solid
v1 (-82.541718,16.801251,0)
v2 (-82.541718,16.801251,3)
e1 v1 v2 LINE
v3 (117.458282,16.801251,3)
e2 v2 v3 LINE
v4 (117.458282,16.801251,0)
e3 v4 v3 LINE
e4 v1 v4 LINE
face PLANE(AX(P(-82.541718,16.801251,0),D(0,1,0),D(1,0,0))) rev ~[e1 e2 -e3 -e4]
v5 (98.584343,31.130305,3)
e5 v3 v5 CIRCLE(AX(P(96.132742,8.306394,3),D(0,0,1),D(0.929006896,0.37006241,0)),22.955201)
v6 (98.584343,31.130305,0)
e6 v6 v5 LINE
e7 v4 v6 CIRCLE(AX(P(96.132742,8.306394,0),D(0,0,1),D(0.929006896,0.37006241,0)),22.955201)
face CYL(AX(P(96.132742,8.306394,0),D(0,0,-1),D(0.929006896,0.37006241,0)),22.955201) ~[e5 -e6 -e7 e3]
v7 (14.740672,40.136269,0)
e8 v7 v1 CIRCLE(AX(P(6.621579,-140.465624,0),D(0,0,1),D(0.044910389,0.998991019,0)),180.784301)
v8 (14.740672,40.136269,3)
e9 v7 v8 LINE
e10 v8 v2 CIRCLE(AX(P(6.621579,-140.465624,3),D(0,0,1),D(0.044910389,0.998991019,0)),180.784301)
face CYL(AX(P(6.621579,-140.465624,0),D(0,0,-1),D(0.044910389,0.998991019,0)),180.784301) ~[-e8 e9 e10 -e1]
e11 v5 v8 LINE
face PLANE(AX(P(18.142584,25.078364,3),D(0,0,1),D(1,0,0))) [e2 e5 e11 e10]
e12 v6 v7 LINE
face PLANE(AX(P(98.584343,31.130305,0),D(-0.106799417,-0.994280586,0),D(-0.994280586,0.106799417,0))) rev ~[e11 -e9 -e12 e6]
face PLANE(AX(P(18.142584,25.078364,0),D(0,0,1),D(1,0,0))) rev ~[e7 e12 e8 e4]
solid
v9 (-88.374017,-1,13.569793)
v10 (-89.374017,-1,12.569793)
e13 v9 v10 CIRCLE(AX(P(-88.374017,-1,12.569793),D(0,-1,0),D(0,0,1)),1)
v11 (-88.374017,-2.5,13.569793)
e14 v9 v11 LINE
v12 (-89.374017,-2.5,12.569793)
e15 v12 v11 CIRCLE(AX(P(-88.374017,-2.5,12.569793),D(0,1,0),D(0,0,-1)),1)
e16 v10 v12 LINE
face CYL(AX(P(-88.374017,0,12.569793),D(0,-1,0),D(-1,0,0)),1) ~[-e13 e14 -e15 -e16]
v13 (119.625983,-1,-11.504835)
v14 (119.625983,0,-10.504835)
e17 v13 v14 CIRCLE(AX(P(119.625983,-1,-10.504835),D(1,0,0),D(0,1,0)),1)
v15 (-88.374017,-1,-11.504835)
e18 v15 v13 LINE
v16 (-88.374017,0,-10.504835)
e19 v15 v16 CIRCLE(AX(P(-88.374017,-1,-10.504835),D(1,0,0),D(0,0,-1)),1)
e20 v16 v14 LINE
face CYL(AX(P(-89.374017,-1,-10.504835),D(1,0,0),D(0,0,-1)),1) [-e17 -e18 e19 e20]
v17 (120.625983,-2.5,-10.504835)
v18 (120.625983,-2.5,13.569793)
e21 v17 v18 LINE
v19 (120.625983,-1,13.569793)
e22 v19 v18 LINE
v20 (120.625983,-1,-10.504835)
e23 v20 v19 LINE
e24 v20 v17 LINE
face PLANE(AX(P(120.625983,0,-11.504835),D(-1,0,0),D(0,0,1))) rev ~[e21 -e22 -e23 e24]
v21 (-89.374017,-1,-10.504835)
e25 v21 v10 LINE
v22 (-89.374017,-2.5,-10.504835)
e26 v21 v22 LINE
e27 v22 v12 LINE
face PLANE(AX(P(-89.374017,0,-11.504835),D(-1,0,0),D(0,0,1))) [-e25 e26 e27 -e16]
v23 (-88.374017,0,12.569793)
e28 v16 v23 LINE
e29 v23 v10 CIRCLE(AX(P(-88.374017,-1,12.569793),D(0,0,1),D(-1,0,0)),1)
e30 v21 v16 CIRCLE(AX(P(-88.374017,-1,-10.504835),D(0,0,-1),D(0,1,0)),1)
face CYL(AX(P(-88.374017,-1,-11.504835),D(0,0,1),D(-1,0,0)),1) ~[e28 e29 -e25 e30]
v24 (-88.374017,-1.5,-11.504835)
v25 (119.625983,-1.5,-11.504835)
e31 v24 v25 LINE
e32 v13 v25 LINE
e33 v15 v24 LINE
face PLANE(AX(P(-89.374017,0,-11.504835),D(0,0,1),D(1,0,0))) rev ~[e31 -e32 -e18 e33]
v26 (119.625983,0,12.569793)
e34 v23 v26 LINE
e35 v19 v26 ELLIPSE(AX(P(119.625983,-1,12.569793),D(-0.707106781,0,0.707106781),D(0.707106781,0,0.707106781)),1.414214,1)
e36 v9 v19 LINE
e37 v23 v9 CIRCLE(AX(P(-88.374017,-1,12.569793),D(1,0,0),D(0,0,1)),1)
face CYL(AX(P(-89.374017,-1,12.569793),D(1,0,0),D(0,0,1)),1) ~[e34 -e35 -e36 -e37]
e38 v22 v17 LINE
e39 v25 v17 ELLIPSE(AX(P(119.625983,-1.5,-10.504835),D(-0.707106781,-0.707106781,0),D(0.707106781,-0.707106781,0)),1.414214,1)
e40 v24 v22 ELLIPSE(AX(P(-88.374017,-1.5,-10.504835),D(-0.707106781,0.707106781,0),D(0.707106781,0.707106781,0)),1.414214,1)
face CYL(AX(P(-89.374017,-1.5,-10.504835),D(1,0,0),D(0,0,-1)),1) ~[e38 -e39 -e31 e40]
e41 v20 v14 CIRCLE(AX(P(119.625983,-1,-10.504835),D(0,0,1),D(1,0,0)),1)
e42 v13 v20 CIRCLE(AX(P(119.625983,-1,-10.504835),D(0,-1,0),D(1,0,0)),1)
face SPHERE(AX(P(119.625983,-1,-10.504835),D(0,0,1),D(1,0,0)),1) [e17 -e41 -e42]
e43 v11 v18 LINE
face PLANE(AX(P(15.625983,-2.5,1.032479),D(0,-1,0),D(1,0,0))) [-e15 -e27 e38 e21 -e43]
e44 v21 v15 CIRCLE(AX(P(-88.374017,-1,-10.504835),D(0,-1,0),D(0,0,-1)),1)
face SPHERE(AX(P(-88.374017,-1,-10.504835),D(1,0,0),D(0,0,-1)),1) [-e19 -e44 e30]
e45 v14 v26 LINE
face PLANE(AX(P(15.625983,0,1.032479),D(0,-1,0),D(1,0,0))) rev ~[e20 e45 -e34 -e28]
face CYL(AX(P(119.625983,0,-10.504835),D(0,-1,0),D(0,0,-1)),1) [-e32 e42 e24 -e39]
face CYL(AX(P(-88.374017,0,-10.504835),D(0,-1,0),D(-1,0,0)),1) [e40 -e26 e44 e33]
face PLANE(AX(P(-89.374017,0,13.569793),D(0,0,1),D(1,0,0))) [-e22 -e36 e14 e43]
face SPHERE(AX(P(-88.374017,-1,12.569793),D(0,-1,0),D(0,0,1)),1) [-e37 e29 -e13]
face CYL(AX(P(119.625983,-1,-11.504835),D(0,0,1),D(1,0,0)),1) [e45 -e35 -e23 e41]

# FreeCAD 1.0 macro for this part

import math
import FreeCAD as App
import Part
import Sketcher
from FreeCAD import Vector


def edges_at(feature, points):
    """Names of the edges that pass closest to the given points."""
    edges = feature.Shape.Edges
    near = lambda p: min(range(len(edges)), key=lambda i: edges[i].distToShape(Part.Vertex(*p))[0])
    return sorted({f"Edge{near(p) + 1}" for p in points})

doc = App.newDocument("Part")
body = doc.addObject("PartDesign::Body", "Body")

# Sketch on XY plane
sketch1 = doc.addObject("Sketcher::SketchObject", "Sketch")
body.addObject(sketch1)
sketch1.AttachmentSupport = (doc.XY_Plane, [""])
sketch1.MapMode = "FlatFace"
sketch1.addGeometry(Part.ArcOfCircle(Part.Circle(Vector(6.621579, -140.465624, 0), Vector(0, 0, 1), 180.784301), math.radians(87.425958), math.radians(119.551301)), False)
sketch1.addGeometry(Part.LineSegment(Vector(-82.541718, 16.801251, 0), Vector(117.458282, 16.801251, 0)), False)
sketch1.addGeometry(Part.ArcOfCircle(Part.Circle(Vector(96.132742, 8.306394, 0), Vector(0, 0, 1), 22.955201), math.radians(21.719466), math.radians(83.869153)), False)
sketch1.addGeometry(Part.LineSegment(Vector(98.584343, 31.130305, 0), Vector(14.740672, 40.136269, 0)), False)
sketch1.addConstraint(Sketcher.Constraint("Coincident", 0, 2, 1, 1))
sketch1.addConstraint(Sketcher.Constraint("Coincident", 1, 2, 2, 1))
sketch1.addConstraint(Sketcher.Constraint("Coincident", 2, 2, 3, 1))
sketch1.addConstraint(Sketcher.Constraint("Coincident", 3, 2, 0, 1))
sketch1.addConstraint(Sketcher.Constraint("Horizontal", 1))
sketch1.addConstraint(Sketcher.Constraint("DistanceX", 1, 1, 1, 2, 200.0))
sketch1.addConstraint(Sketcher.Constraint("Radius", 0, 180.784301))
sketch1.addConstraint(Sketcher.Constraint("Radius", 2, 22.955201))
sketch1.addConstraint(Sketcher.Constraint("DistanceX", 2, 3, 2, 2, 2.451601))
sketch1.addConstraint(Sketcher.Constraint("DistanceX", -1, 1, 0, 3, 6.621579))
sketch1.addConstraint(Sketcher.Constraint("DistanceX", -1, 1, 2, 3, 96.132742))
sketch1.addConstraint(Sketcher.Constraint("DistanceY", -1, 1, 0, 2, 16.801251))
sketch1.addConstraint(Sketcher.Constraint("DistanceX", -1, 1, 1, 2, 117.458282))
sketch1.addConstraint(Sketcher.Constraint("DistanceY", -1, 1, 3, 2, 40.136269))
pad1 = doc.addObject("PartDesign::Pad", "Pad")
body.addObject(pad1)
pad1.Profile = sketch1
pad1.Length = 3
body2 = doc.addObject("PartDesign::Body", "Body001")

# Sketch on XZ plane
sketch2 = doc.addObject("Sketcher::SketchObject", "Sketch001")
body2.addObject(sketch2)
sketch2.AttachmentSupport = (doc.getObject("XZ_Plane001"), [""])
sketch2.MapMode = "FlatFace"
sketch2.addGeometry(Part.LineSegment(Vector(-89.374017, 13.569793, 0), Vector(-89.374017, -11.504835, 0)), False)
sketch2.addGeometry(Part.LineSegment(Vector(-89.374017, -11.504835, 0), Vector(120.625983, -11.504835, 0)), False)
sketch2.addGeometry(Part.LineSegment(Vector(120.625983, -11.504835, 0), Vector(120.625983, 13.569793, 0)), False)
sketch2.addGeometry(Part.LineSegment(Vector(120.625983, 13.569793, 0), Vector(-89.374017, 13.569793, 0)), False)
sketch2.addConstraint(Sketcher.Constraint("Coincident", 0, 2, 1, 1))
sketch2.addConstraint(Sketcher.Constraint("Coincident", 1, 2, 2, 1))
sketch2.addConstraint(Sketcher.Constraint("Coincident", 2, 2, 3, 1))
sketch2.addConstraint(Sketcher.Constraint("Coincident", 3, 2, 0, 1))
sketch2.addConstraint(Sketcher.Constraint("Vertical", 0))
sketch2.addConstraint(Sketcher.Constraint("Horizontal", 1))
sketch2.addConstraint(Sketcher.Constraint("Vertical", 2))
sketch2.addConstraint(Sketcher.Constraint("Horizontal", 3))
sketch2.addConstraint(Sketcher.Constraint("DistanceX", 1, 1, 1, 2, 210.0))
sketch2.addConstraint(Sketcher.Constraint("DistanceY", 0, 2, 0, 1, 25.074628))
sketch2.addConstraint(Sketcher.Constraint("DistanceX", 0, 2, -1, 1, 89.374017))
sketch2.addConstraint(Sketcher.Constraint("DistanceY", 0, 2, -1, 1, 11.504835))
pad2 = doc.addObject("PartDesign::Pad", "Pad001")
body2.addObject(pad2)
pad2.Profile = sketch2
pad2.Length = 2.5
doc.recompute()

fillet = doc.addObject("PartDesign::Fillet", "Fillet")
body2.addObject(fillet)
fillet.Base = (pad2, edges_at(pad2, [
    (-89.374, -1.25, 13.57),
    (15.626, 0, 13.57),
    (120.626, 0, 1.032),
    (120.626, -1.25, -11.505),
    (15.626, 0, -11.505),
    (15.626, -2.5, -11.505),
    (-89.374, -1.25, -11.505),
    (-89.374, 0, 1.032),
]))
fillet.Radius = 1

doc.recompute()
